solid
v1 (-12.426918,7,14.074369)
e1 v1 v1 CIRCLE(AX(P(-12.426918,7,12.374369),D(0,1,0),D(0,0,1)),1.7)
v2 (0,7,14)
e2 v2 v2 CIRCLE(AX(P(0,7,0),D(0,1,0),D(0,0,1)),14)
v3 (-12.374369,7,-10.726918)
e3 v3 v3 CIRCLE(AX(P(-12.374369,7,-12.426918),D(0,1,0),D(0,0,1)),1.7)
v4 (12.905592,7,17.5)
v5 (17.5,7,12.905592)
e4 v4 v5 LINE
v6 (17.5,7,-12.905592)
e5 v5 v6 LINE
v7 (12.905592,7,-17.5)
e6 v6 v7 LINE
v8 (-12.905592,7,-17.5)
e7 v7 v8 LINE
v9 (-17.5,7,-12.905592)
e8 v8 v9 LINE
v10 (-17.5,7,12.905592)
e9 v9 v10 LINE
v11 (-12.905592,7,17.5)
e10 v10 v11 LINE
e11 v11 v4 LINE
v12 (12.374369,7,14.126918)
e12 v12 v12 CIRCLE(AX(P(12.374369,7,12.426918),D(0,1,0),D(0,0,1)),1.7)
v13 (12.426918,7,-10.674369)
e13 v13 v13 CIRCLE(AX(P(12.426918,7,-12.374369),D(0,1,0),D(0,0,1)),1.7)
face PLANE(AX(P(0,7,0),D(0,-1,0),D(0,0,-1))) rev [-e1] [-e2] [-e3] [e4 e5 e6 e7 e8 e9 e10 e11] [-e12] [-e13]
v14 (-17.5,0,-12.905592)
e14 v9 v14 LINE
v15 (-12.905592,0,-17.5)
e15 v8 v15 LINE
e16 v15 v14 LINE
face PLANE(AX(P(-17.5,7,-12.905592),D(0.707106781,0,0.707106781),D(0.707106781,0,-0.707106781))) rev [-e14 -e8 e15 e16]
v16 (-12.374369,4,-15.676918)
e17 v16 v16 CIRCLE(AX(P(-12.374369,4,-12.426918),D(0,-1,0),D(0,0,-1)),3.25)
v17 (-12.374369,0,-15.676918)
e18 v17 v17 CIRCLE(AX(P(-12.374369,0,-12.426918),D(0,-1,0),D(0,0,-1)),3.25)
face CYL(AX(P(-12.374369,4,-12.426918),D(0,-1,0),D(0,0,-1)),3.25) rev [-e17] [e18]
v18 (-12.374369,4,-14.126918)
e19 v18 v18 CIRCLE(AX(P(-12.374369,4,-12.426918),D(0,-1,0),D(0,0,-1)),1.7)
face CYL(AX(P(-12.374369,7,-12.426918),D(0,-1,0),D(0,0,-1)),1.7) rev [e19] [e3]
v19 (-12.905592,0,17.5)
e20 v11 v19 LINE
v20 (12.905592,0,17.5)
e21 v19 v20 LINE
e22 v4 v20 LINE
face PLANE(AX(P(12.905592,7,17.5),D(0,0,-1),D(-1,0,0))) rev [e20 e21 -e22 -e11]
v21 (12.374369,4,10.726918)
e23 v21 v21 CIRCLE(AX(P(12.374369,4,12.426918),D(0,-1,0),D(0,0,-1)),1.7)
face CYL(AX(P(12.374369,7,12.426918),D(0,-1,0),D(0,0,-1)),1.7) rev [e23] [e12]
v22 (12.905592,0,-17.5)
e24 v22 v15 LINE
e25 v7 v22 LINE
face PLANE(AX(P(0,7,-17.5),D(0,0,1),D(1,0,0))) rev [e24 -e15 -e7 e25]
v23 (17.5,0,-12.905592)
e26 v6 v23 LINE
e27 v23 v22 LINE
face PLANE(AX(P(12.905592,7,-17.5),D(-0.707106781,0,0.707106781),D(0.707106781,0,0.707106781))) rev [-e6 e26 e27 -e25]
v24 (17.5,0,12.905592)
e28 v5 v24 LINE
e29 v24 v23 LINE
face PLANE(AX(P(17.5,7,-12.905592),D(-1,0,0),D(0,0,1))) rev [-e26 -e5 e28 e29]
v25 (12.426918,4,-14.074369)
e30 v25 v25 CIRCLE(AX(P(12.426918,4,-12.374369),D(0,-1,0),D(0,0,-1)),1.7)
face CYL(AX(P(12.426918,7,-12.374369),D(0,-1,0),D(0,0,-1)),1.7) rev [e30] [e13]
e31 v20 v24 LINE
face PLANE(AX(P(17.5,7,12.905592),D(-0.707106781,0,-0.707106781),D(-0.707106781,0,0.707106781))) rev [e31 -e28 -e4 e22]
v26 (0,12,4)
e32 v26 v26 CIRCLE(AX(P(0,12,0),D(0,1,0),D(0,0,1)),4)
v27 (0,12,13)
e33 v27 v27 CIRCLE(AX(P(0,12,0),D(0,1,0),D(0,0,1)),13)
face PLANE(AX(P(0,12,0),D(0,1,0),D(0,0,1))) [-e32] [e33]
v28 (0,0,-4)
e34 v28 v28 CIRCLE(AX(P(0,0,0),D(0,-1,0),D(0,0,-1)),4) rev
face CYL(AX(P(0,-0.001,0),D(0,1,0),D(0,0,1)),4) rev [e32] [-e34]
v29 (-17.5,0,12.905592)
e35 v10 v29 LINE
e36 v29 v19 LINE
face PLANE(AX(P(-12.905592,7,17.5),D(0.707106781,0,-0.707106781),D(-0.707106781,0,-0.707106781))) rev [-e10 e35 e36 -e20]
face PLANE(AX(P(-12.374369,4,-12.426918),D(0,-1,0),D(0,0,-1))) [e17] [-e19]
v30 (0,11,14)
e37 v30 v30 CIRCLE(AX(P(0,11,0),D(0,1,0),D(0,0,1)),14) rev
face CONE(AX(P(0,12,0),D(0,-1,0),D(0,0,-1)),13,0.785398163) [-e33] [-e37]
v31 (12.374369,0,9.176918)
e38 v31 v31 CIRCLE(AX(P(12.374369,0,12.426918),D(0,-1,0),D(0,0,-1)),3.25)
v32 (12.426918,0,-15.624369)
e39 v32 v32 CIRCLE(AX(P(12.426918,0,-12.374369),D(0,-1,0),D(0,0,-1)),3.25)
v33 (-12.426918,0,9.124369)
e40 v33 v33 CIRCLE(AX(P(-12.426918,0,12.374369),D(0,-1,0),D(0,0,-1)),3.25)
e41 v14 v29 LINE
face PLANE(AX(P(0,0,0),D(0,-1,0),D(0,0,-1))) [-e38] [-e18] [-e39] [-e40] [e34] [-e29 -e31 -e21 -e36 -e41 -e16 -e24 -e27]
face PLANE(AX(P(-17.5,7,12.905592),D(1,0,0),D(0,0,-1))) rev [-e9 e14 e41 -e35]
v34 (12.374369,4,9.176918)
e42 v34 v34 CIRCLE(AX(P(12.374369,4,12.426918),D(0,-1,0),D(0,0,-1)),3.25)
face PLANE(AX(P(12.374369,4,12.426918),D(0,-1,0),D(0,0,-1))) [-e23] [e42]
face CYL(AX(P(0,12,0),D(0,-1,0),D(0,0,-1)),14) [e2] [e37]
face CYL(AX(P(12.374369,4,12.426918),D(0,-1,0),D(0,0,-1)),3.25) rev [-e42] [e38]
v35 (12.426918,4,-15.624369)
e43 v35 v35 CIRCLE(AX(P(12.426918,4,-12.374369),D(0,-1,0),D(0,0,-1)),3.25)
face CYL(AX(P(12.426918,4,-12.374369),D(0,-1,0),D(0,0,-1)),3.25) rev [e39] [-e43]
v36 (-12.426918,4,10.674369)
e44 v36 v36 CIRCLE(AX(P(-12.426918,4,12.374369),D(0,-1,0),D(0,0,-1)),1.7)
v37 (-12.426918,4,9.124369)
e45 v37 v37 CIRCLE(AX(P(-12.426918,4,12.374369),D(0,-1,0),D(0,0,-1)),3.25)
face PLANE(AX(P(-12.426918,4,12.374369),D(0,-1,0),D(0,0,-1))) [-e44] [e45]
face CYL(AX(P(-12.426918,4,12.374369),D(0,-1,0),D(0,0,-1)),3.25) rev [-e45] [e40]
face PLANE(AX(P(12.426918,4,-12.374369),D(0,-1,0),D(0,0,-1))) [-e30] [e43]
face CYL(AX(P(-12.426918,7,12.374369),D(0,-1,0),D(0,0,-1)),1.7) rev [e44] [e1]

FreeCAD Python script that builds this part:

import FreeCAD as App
import Part
import Sketcher

V = App.Vector


def edges_at(feature, points):
    """Names of the edges that pass closest to the given points."""
    edges = feature.Shape.Edges
    near = lambda p: min(range(len(edges)), key=lambda i: edges[i].distToShape(Part.Vertex(*p))[0])
    return sorted({f"Edge{near(p) + 1}" for p in points})

doc = App.newDocument("Part")
params = doc.addObject("Spreadsheet::Sheet", "Params")
for row, (alias, value) in enumerate([
    ("sketch1_diameter", "3.4 mm"),
    ("pad1_length", "7 mm"),
    ("sketch2_diameter", "28 mm"),
    ("pad2_length", "5 mm"),
    ("sketch3_diameter", "8 mm"),
    ("sketch4_diameter", "6.5 mm"),
    ("pocket2_length", "4 mm"),
    ("chamfer_size", "1 mm"),
], start=1):
    params.set(f"A{row}", alias)
    params.set(f"B{row}", "=" + value)
    params.setAlias(f"B{row}", alias)

body = doc.addObject("PartDesign::Body", "Body")

# Sketch on XZ plane
sketch1 = body.newObject("Sketcher::SketchObject", "Sketch")
sketch1.AttachmentSupport = (doc.getObject("XZ_Plane"), [""])
sketch1.MapMode = "FlatFace"
sketch1.addGeometry(Part.LineSegment(V(12.9, -17.5, 0), V(-12.9, -17.5, 0)), False)
sketch1.addGeometry(Part.LineSegment(V(-12.9, -17.5, 0), V(-17.5, -12.9, 0)), False)
sketch1.addGeometry(Part.LineSegment(V(-17.5, -12.9, 0), V(-17.5, 12.9, 0)), False)
sketch1.addGeometry(Part.LineSegment(V(-17.5, 12.9, 0), V(-12.9, 17.5, 0)), False)
sketch1.addGeometry(Part.LineSegment(V(-12.9, 17.5, 0), V(12.9, 17.5, 0)), False)
sketch1.addGeometry(Part.LineSegment(V(12.9, 17.5, 0), V(17.5, 12.9, 0)), False)
sketch1.addGeometry(Part.LineSegment(V(17.5, 12.9, 0), V(17.5, -12.9, 0)), False)
sketch1.addGeometry(Part.LineSegment(V(17.5, -12.9, 0), V(12.9, -17.5, 0)), False)
sketch1.addGeometry(Part.Circle(V(12.4, 12.4, 0), V(0, 0, 1), 1.7), False)
sketch1.addGeometry(Part.Circle(V(-12.4, 12.4, 0), V(0, 0, 1), 1.7), False)
sketch1.addGeometry(Part.Circle(V(12.4, -12.4, 0), V(0, 0, 1), 1.7), False)
sketch1.addGeometry(Part.Circle(V(-12.4, -12.4, 0), V(0, 0, 1), 1.7), False)
sketch1.addConstraint(Sketcher.Constraint("Coincident", 0, 2, 1, 1))
sketch1.addConstraint(Sketcher.Constraint("Coincident", 1, 2, 2, 1))
sketch1.addConstraint(Sketcher.Constraint("Coincident", 2, 2, 3, 1))
sketch1.addConstraint(Sketcher.Constraint("Coincident", 3, 2, 4, 1))
sketch1.addConstraint(Sketcher.Constraint("Coincident", 4, 2, 5, 1))
sketch1.addConstraint(Sketcher.Constraint("Coincident", 5, 2, 6, 1))
sketch1.addConstraint(Sketcher.Constraint("Coincident", 6, 2, 7, 1))
sketch1.addConstraint(Sketcher.Constraint("Coincident", 7, 2, 0, 1))
sketch1.addConstraint(Sketcher.Constraint("Horizontal", 0))
sketch1.addConstraint(Sketcher.Constraint("Vertical", 2))
sketch1.addConstraint(Sketcher.Constraint("Horizontal", 4))
sketch1.addConstraint(Sketcher.Constraint("Vertical", 6))
sketch1.addConstraint(Sketcher.Constraint("Equal", 8, 9))
sketch1.addConstraint(Sketcher.Constraint("Equal", 9, 10))
sketch1.addConstraint(Sketcher.Constraint("Equal", 10, 11))
sketch1.addConstraint(Sketcher.Constraint("Symmetric", 9, 3, 10, 3, -1, 1))
sketch1.addConstraint(Sketcher.Constraint("Symmetric", 8, 3, 11, 3, -1, 1))
sketch1.addConstraint(Sketcher.Constraint("Symmetric", 0, 2, 4, 2, -1, 1))
sketch1.addConstraint(Sketcher.Constraint("Symmetric", 1, 2, 5, 2, -1, 1))
sketch1.addConstraint(Sketcher.Constraint("Perpendicular", 1, 3))
sketch1.addConstraint(Sketcher.Constraint("Perpendicular", 5, 7))
sketch1.addConstraint(Sketcher.Constraint("Horizontal", 2, 2, 5, 2))
sketch1.addConstraint(Sketcher.Constraint("Horizontal", 1, 2, 6, 2))
sketch1.addConstraint(Sketcher.Constraint("Vertical", 0, 2, 3, 2))
sketch1.addConstraint(Sketcher.Constraint("Equal", 4, 2))
sketch1.addConstraint(Sketcher.Constraint("Diameter", 8, 3.4))
sketch1.addConstraint(Sketcher.Constraint("DistanceY", 0, 2, -1, 1, 17.5))
sketch1.addConstraint(Sketcher.Constraint("DistanceX", 0, 2, 0, 1, 25.811183))
sketch1.addConstraint(Sketcher.Constraint("DistanceX", -1, 1, 8, 3, 12.374369))
sketch1.addConstraint(Sketcher.Constraint("DistanceY", -1, 1, 8, 3, 12.426918))
sketch1.addConstraint(Sketcher.Constraint("DistanceX", 9, 3, -1, 1, 12.426918))
sketch1.addConstraint(Sketcher.Constraint("DistanceY", -1, 1, 9, 3, 12.374369))
sketch1.setExpression("Constraints[25]", "Params.sketch1_diameter")
pad1 = body.newObject("PartDesign::Pad", "Pad")
pad1.Profile = sketch1
pad1.setExpression("Length", "Params.pad1_length")
pad1.Reversed = True

# Sketch on XZ plane
sketch2 = body.newObject("Sketcher::SketchObject", "Sketch001")
sketch2.AttachmentSupport = (doc.getObject("XZ_Plane"), [""])
sketch2.MapMode = "FlatFace"
sketch2.AttachmentOffset = App.Placement(V(0, 0, -7), App.Rotation())
sketch2.addGeometry(Part.Circle(V(0, 0, 0), V(0, 0, 1), 14), False)
sketch2.addConstraint(Sketcher.Constraint("Coincident", 0, 3, -1, 1))
sketch2.addConstraint(Sketcher.Constraint("Diameter", 0, 28.0))
sketch2.setExpression("Constraints[1]", "Params.sketch2_diameter")
pad2 = body.newObject("PartDesign::Pad", "Pad001")
pad2.Profile = sketch2
pad2.setExpression("Length", "Params.pad2_length")
pad2.Reversed = True

# Sketch on XZ plane
sketch3 = body.newObject("Sketcher::SketchObject", "Sketch002")
sketch3.AttachmentSupport = (doc.getObject("XZ_Plane"), [""])
sketch3.MapMode = "FlatFace"
sketch3.AttachmentOffset = App.Placement(V(0, 0, -12), App.Rotation())
sketch3.addGeometry(Part.Circle(V(0, 0, 0), V(0, 0, 1), 4), False)
sketch3.addConstraint(Sketcher.Constraint("Coincident", 0, 3, -1, 1))
sketch3.addConstraint(Sketcher.Constraint("Diameter", 0, 8.0))
sketch3.setExpression("Constraints[1]", "Params.sketch3_diameter")
pocket1 = body.newObject("PartDesign::Pocket", "Pocket")
pocket1.Profile = sketch3
pocket1.Type = "UpToFirst"
pocket1.Reversed = True

# Sketch on XZ plane
sketch4 = body.newObject("Sketcher::SketchObject", "Sketch003")
sketch4.AttachmentSupport = (doc.getObject("XZ_Plane"), [""])
sketch4.MapMode = "FlatFace"
sketch4.addGeometry(Part.Circle(V(-12.4, 12.4, 0), V(0, 0, 1), 3.2), False)
sketch4.addGeometry(Part.Circle(V(12.4, 12.4, 0), V(0, 0, 1), 3.2), False)
sketch4.addGeometry(Part.Circle(V(12.4, -12.4, 0), V(0, 0, 1), 3.2), False)
sketch4.addGeometry(Part.Circle(V(-12.4, -12.4, 0), V(0, 0, 1), 3.2), False)
sketch4.addConstraint(Sketcher.Constraint("Equal", 0, 1))
sketch4.addConstraint(Sketcher.Constraint("Equal", 1, 2))
sketch4.addConstraint(Sketcher.Constraint("Equal", 2, 3))
sketch4.addConstraint(Sketcher.Constraint("Symmetric", 0, 3, 2, 3, -1, 1))
sketch4.addConstraint(Sketcher.Constraint("Symmetric", 1, 3, 3, 3, -1, 1))
sketch4.addConstraint(Sketcher.Constraint("Diameter", 0, 6.5))
sketch4.addConstraint(Sketcher.Constraint("DistanceX", 0, 3, -1, 1, 12.426918))
sketch4.addConstraint(Sketcher.Constraint("DistanceY", -1, 1, 0, 3, 12.374369))
sketch4.addConstraint(Sketcher.Constraint("DistanceX", -1, 1, 1, 3, 12.374369))
sketch4.addConstraint(Sketcher.Constraint("DistanceY", -1, 1, 1, 3, 12.426918))
sketch4.setExpression("Constraints[5]", "Params.sketch4_diameter")
pocket2 = body.newObject("PartDesign::Pocket", "Pocket001")
pocket2.Profile = sketch4
pocket2.setExpression("Length", "Params.pocket2_length")
doc.recompute()

chamfer = body.newObject("PartDesign::Chamfer", "Chamfer")
chamfer.Base = (pocket2, edges_at(pocket2, [(0, 12, -14)]))
chamfer.setExpression("Size", "Params.chamfer_size")

doc.recompute()
